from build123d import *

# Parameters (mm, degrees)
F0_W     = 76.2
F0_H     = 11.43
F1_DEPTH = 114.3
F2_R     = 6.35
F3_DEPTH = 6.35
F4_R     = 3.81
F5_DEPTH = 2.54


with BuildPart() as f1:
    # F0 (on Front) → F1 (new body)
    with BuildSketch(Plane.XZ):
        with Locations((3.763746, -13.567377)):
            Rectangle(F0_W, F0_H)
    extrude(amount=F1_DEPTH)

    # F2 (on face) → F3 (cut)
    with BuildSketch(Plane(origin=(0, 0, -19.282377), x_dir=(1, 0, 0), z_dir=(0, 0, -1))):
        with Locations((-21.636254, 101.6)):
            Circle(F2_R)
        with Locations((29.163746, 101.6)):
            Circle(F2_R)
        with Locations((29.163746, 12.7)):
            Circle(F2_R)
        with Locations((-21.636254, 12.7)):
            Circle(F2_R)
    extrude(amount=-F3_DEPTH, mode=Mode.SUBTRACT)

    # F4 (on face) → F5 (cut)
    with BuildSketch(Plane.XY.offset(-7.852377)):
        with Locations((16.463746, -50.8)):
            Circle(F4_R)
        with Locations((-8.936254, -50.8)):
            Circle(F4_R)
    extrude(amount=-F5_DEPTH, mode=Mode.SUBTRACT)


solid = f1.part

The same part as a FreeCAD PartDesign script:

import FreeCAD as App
import Part
import Sketcher
Q = App.Units.Quantity


def add_polygon(sketch, points):
    """Adds a closed chain of lines whose ends are joined by coincident constraints."""
    first, n = sketch.GeometryCount, len(points)
    for a, b in zip(points, points[1:] + points[:1]):
        sketch.addGeometry(Part.LineSegment(App.Vector(*a, 0), App.Vector(*b, 0)), False)
    for i in range(n):
        sketch.addConstraint(Sketcher.Constraint("Coincident", first + i, 2, first + (i + 1) % n, 1))

doc = App.newDocument("Part")
body = doc.addObject("PartDesign::Body", "Body")

sketch1 = doc.addObject("Sketcher::SketchObject", "Sketch")
body.addObject(sketch1)
sketch1.AttachmentSupport = (doc.XZ_Plane, [""])
sketch1.MapMode = "FlatFace"
add_polygon(sketch1, [(-34.336254, -7.852377), (-34.336254, -19.282377), (41.863746, -19.282377), (41.863746, -7.852377)])
sketch1.addConstraint([
    Sketcher.Constraint("Vertical", 0),
    Sketcher.Constraint("Horizontal", 1),
    Sketcher.Constraint("Vertical", 2),
    Sketcher.Constraint("Horizontal", 3),
    Sketcher.Constraint("DistanceX", 1, 1, 1, 2, Q("3 in")),
    Sketcher.Constraint("DistanceY", 0, 2, 0, 1, Q("0.45 in")),
    Sketcher.Constraint("DistanceX", 0, 2, -1, 1, 34.336254),
    Sketcher.Constraint("DistanceY", 0, 2, -1, 1, 19.282377),
])
pad1 = doc.addObject("PartDesign::Pad", "Pad")
body.addObject(pad1)
pad1.Profile = sketch1
pad1.Length = Q("4.5 in")

sketch2 = doc.addObject("Sketcher::SketchObject", "Sketch001")
body.addObject(sketch2)
sketch2.AttachmentSupport = (doc.XY_Plane, [""])
sketch2.MapMode = "FlatFace"
sketch2.AttachmentOffset = App.Placement(App.Vector(0, 0, -19.282377), App.Rotation())
sketch2.addGeometry([
    Part.Circle(App.Vector(-21.636254, -101.6, 0), App.Vector(0, 0, 1), 6.35),
    Part.Circle(App.Vector(29.163746, -101.6, 0), App.Vector(0, 0, 1), 6.35),
    Part.Circle(App.Vector(29.163746, -12.7, 0), App.Vector(0, 0, 1), 6.35),
    Part.Circle(App.Vector(-21.636254, -12.7, 0), App.Vector(0, 0, 1), 6.35),
], False)
sketch2.addConstraint([
    Sketcher.Constraint("Equal", 0, 1),
    Sketcher.Constraint("Equal", 1, 2),
    Sketcher.Constraint("Equal", 2, 3),
    Sketcher.Constraint("Horizontal", 0, 3, 1, 3),
    Sketcher.Constraint("Horizontal", 2, 3, 3, 3),
    Sketcher.Constraint("Vertical", 1, 3, 2, 3),
    Sketcher.Constraint("Vertical", 0, 3, 3, 3),
    Sketcher.Constraint("Diameter", 0, Q("0.5 in")),
    Sketcher.Constraint("DistanceY", 0, 3, -1, 1, Q("4 in")),
    Sketcher.Constraint("DistanceX", 0, 3, 1, 3, Q("2 in")),
    Sketcher.Constraint("DistanceY", 2, 3, -1, 1, Q("0.5 in")),
    Sketcher.Constraint("DistanceX", 0, 3, -1, 1, 21.636254),
])
pocket1 = doc.addObject("PartDesign::Pocket", "Pocket")
body.addObject(pocket1)
pocket1.Profile = sketch2
pocket1.Length = Q("0.25 in")
pocket1.Reversed = True

sketch3 = doc.addObject("Sketcher::SketchObject", "Sketch002")
body.addObject(sketch3)
sketch3.AttachmentSupport = (doc.XY_Plane, [""])
sketch3.MapMode = "FlatFace"
sketch3.AttachmentOffset = App.Placement(App.Vector(0, 0, -7.852377), App.Rotation())
sketch3.addGeometry([
    Part.Circle(App.Vector(16.463746, -50.8, 0), App.Vector(0, 0, 1), 3.81),
    Part.Circle(App.Vector(-8.936254, -50.8, 0), App.Vector(0, 0, 1), 3.81),
], False)
sketch3.addConstraint([
    Sketcher.Constraint("Equal", 0, 1),
    Sketcher.Constraint("Horizontal", 0, 3, 1, 3),
    Sketcher.Constraint("Diameter", 0, Q("0.3 in")),
    Sketcher.Constraint("DistanceY", 0, 3, -1, 1, Q("2 in")),
    Sketcher.Constraint("DistanceX", 1, 3, 0, 3, Q("1 in")),
    Sketcher.Constraint("DistanceX", -1, 1, 0, 3, 16.463746),
])
pocket2 = doc.addObject("PartDesign::Pocket", "Pocket001")
body.addObject(pocket2)
pocket2.Profile = sketch3
pocket2.Length = Q("0.1 in")

doc.recompute()
